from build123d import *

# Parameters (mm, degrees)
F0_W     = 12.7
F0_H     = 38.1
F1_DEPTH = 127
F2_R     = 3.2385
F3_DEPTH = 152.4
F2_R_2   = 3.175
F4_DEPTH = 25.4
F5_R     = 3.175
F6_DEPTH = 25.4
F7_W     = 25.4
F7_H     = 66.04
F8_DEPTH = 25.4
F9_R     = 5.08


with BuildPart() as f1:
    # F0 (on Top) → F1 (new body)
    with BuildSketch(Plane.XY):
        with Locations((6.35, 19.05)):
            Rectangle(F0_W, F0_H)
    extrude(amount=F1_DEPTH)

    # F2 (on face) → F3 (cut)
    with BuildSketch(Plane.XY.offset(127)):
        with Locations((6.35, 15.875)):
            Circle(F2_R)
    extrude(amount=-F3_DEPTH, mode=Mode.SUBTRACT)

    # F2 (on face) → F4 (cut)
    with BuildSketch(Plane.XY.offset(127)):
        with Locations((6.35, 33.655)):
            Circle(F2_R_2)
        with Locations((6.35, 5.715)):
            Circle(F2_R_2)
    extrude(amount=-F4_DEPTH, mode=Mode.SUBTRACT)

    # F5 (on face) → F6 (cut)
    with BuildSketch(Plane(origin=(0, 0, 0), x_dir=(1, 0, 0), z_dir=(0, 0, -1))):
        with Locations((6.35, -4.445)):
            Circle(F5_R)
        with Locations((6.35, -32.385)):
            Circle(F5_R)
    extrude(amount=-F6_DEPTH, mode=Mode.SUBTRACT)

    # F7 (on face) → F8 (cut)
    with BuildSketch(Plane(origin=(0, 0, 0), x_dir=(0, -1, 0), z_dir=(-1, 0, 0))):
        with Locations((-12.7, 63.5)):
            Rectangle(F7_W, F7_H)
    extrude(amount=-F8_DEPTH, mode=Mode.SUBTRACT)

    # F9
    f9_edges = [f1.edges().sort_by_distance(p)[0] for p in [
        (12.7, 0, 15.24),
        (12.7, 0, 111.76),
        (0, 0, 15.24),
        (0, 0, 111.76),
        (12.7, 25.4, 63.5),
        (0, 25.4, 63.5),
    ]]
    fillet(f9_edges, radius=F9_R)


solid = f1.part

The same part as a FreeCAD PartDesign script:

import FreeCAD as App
import Part
import Sketcher
from FreeCAD import Vector
Q = App.Units.Quantity


def edges_at(feature, points):
    """Names of the edges that pass closest to the given points."""
    edges = feature.Shape.Edges
    near = lambda p: min(range(len(edges)), key=lambda i: edges[i].distToShape(Part.Vertex(*p))[0])
    return sorted({f"Edge{near(p) + 1}" for p in points})


def add_polygon(sketch, points):
    """Adds a closed chain of lines whose ends are joined by coincident constraints."""
    first, n = sketch.GeometryCount, len(points)
    for a, b in zip(points, points[1:] + points[:1]):
        sketch.addGeometry(Part.LineSegment(App.Vector(*a, 0), App.Vector(*b, 0)), False)
    for i in range(n):
        sketch.addConstraint(Sketcher.Constraint("Coincident", first + i, 2, first + (i + 1) % n, 1))

doc = App.newDocument("Part")
body = doc.addObject("PartDesign::Body", "Body")

# Sketch on XY plane
sketch1 = body.newObject("Sketcher::SketchObject", "Sketch")
sketch1.AttachmentSupport = (doc.getObject("XY_Plane"), [""])
sketch1.MapMode = "FlatFace"
add_polygon(sketch1, [(0, 38), (0, 0), (13, 0), (13, 38)])  # lines 0-3
sketch1.addConstraint(Sketcher.Constraint("Vertical", 0))
sketch1.addConstraint(Sketcher.Constraint("Horizontal", 1))
sketch1.addConstraint(Sketcher.Constraint("Vertical", 2))
sketch1.addConstraint(Sketcher.Constraint("Horizontal", 3))
sketch1.addConstraint(Sketcher.Constraint("Coincident", 0, 2, -1, 1))
sketch1.addConstraint(Sketcher.Constraint("DistanceX", 1, 1, 1, 2, Q("0.5 in")))
sketch1.addConstraint(Sketcher.Constraint("DistanceY", 0, 2, 0, 1, Q("1.5 in")))
pad1 = body.newObject("PartDesign::Pad", "Pad")
pad1.Profile = sketch1
pad1.Length = Q("5 in")

# Sketch on XY plane
sketch2 = body.newObject("Sketcher::SketchObject", "Sketch001")
sketch2.AttachmentSupport = (doc.getObject("XY_Plane"), [""])
sketch2.MapMode = "FlatFace"
sketch2.AttachmentOffset = App.Placement(Vector(0, 0, 5 * 25.4), App.Rotation())
sketch2.addGeometry(Part.Circle(Vector(6.3, 15.9, 0), Vector(0, 0, 1), 3.2), False)
sketch2.addConstraint(Sketcher.Constraint("Diameter", 0, Q("0.255 in")))
sketch2.addConstraint(Sketcher.Constraint("DistanceX", -1, 1, 0, 3, Q("0.25 in")))
sketch2.addConstraint(Sketcher.Constraint("DistanceY", -1, 1, 0, 3, Q("0.625 in")))
pocket1 = body.newObject("PartDesign::Pocket", "Pocket")
pocket1.Profile = sketch2
pocket1.Length = Q("6 in")

# Sketch on XY plane
sketch3 = body.newObject("Sketcher::SketchObject", "Sketch002")
sketch3.AttachmentSupport = (doc.getObject("XY_Plane"), [""])
sketch3.MapMode = "FlatFace"
sketch3.AttachmentOffset = App.Placement(Vector(0, 0, 5 * 25.4), App.Rotation())
sketch3.addGeometry(Part.Circle(Vector(6.3, 33.7, 0), Vector(0, 0, 1), 3.2), False)
sketch3.addGeometry(Part.Circle(Vector(6.3, 5.7, 0), Vector(0, 0, 1), 3.2), False)
sketch3.addConstraint(Sketcher.Constraint("Equal", 0, 1))
sketch3.addConstraint(Sketcher.Constraint("Vertical", 0, 3, 1, 3))
sketch3.addConstraint(Sketcher.Constraint("Diameter", 0, Q("0.25 in")))
sketch3.addConstraint(Sketcher.Constraint("DistanceY", 1, 3, 0, 3, Q("1.1 in")))
sketch3.addConstraint(Sketcher.Constraint("DistanceX", -1, 1, 0, 3, Q("0.25 in")))
sketch3.addConstraint(Sketcher.Constraint("DistanceY", -1, 1, 0, 3, Q("1.325 in")))
pocket2 = body.newObject("PartDesign::Pocket", "Pocket001")
pocket2.Profile = sketch3
pocket2.Length = Q("1 in")

# Sketch on XY plane
sketch4 = body.newObject("Sketcher::SketchObject", "Sketch003")
sketch4.AttachmentSupport = (doc.getObject("XY_Plane"), [""])
sketch4.MapMode = "FlatFace"
sketch4.addGeometry(Part.Circle(Vector(6.3, 4.4, 0), Vector(0, 0, 1), 3.2), False)
sketch4.addGeometry(Part.Circle(Vector(6.3, 32.4, 0), Vector(0, 0, 1), 3.2), False)
sketch4.addConstraint(Sketcher.Constraint("Equal", 0, 1))
sketch4.addConstraint(Sketcher.Constraint("Vertical", 0, 3, 1, 3))
sketch4.addConstraint(Sketcher.Constraint("Diameter", 0, Q("0.25 in")))
sketch4.addConstraint(Sketcher.Constraint("DistanceY", 0, 3, 1, 3, Q("1.1 in")))
sketch4.addConstraint(Sketcher.Constraint("DistanceX", -1, 1, 0, 3, Q("0.25 in")))
sketch4.addConstraint(Sketcher.Constraint("DistanceY", -1, 1, 0, 3, Q("0.175 in")))
pocket3 = body.newObject("PartDesign::Pocket", "Pocket002")
pocket3.Profile = sketch4
pocket3.Length = Q("1 in")
pocket3.Reversed = True

# Sketch on YZ plane
sketch5 = body.newObject("Sketcher::SketchObject", "Sketch004")
sketch5.AttachmentSupport = (doc.getObject("YZ_Plane"), [""])
sketch5.MapMode = "FlatFace"
add_polygon(sketch5, [(25, 97), (25, 30), (0, 30), (0, 97)])  # lines 0-3
sketch5.addConstraint(Sketcher.Constraint("Vertical", 0))
sketch5.addConstraint(Sketcher.Constraint("Horizontal", 1))
sketch5.addConstraint(Sketcher.Constraint("Vertical", 2))
sketch5.addConstraint(Sketcher.Constraint("Horizontal", 3))
sketch5.addConstraint(Sketcher.Constraint("PointOnObject", 1, 2, -2))
sketch5.addConstraint(Sketcher.Constraint("DistanceX", 1, 2, 1, 1, Q("1 in")))
sketch5.addConstraint(Sketcher.Constraint("DistanceY", 0, 2, 0, 1, Q("2.6 in")))
sketch5.addConstraint(Sketcher.Constraint("DistanceY", -1, 1, 0, 2, Q("1.2 in")))
pocket4 = body.newObject("PartDesign::Pocket", "Pocket003")
pocket4.Profile = sketch5
pocket4.Length = Q("1 in")
pocket4.Reversed = True
doc.recompute()

fillet = body.newObject("PartDesign::Fillet", "Fillet")
fillet.Base = (pocket4, edges_at(pocket4, [
    (12.7, 0, 15.24),
    (12.7, 0, 111.76),
    (0, 0, 15.24),
    (0, 0, 111.76),
    (12.7, 25.4, 63.5),
    (0, 25.4, 63.5),
]))
fillet.Radius = Q("0.2 in")

doc.recompute()
